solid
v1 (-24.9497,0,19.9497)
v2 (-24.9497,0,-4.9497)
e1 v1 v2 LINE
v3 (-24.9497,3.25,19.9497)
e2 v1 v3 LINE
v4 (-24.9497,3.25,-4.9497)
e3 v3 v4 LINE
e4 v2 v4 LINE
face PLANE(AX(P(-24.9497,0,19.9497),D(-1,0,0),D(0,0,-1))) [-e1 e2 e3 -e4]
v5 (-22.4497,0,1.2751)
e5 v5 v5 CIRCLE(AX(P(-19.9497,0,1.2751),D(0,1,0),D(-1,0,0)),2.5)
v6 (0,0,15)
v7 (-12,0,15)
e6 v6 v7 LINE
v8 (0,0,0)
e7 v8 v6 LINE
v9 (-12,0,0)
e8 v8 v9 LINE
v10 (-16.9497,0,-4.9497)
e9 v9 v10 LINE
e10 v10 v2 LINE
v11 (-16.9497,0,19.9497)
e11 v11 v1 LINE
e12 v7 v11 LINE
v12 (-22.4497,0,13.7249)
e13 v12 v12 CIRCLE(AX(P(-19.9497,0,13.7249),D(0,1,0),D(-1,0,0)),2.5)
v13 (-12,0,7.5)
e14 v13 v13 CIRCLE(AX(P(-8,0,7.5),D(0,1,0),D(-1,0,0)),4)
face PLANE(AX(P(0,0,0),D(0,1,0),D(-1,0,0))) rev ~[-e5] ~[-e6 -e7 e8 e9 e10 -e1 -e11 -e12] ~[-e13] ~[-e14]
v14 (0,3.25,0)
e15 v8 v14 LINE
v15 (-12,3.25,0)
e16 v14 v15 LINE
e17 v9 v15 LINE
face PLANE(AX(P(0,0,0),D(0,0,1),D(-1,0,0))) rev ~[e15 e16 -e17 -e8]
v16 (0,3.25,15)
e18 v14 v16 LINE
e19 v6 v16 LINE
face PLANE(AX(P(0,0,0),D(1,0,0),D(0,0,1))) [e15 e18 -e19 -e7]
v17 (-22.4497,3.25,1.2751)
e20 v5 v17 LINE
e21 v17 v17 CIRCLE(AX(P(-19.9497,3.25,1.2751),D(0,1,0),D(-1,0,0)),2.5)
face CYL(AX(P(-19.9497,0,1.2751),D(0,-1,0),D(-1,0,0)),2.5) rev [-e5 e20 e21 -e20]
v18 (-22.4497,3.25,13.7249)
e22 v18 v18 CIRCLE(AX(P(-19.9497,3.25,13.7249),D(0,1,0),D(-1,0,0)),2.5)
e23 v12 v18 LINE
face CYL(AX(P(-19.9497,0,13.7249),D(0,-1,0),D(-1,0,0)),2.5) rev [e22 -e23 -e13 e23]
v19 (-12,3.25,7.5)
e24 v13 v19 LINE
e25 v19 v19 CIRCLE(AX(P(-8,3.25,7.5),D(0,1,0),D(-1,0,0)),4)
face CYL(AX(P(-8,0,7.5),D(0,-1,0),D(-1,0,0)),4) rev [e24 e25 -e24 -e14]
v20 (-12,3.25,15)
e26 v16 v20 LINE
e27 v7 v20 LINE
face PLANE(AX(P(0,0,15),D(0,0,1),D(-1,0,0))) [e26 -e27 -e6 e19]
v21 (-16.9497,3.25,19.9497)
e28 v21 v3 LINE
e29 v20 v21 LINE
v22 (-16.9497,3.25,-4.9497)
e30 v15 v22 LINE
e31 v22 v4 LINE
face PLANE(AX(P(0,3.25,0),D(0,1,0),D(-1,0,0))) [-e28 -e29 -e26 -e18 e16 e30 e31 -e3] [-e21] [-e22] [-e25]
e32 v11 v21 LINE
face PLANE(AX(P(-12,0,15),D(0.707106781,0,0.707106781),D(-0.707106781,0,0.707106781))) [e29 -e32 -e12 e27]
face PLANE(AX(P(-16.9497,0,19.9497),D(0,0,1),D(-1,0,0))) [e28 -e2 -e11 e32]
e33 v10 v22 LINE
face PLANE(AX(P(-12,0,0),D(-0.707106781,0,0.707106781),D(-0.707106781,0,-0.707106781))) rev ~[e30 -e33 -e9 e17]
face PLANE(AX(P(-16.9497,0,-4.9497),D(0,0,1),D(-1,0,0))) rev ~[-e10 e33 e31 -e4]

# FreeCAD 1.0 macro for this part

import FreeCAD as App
import Part
import Sketcher


def add_polygon(sketch, points):
    """Adds a closed chain of lines whose ends are joined by coincident constraints."""
    first, n = sketch.GeometryCount, len(points)
    for a, b in zip(points, points[1:] + points[:1]):
        sketch.addGeometry(Part.LineSegment(App.Vector(*a, 0), App.Vector(*b, 0)), False)
    for i in range(n):
        sketch.addConstraint(Sketcher.Constraint("Coincident", first + i, 2, first + (i + 1) % n, 1))

doc = App.newDocument("Part")
params = doc.addObject("Spreadsheet::Sheet", "Params")
for row, (alias, value) in enumerate([
    ("sketch1_width", "12 mm"),
    ("sketch1_width2", "8 mm"),
    ("sketch1_height", "15 mm"),
    ("sketch1_length", "7 mm"),
    ("pad1_length", "3.25 mm"),
    ("sketch2_diameter", "8 mm"),
    ("sketch2_diameter2", "5 mm"),
    ("pocket1_length", "3.25 mm"),
], start=1):
    params.set(f"A{row}", alias)
    params.set(f"B{row}", "=" + value)
    params.setAlias(f"B{row}", alias)

body = doc.addObject("PartDesign::Body", "Body")

sketch1 = body.newObject("Sketcher::SketchObject", "Sketch")
sketch1.AttachmentSupport = (doc.getObject("XZ_Plane"), [""])
sketch1.MapMode = "FlatFace"
add_polygon(sketch1, [(0, 15), (0, 0), (-12, 0), (-16.9497, -4.9497), (-24.9497, -4.9497), (-24.9497, 19.9497), (-16.9497, 19.9497), (-12, 15)])
sketch1.addConstraint([
    Sketcher.Constraint("Vertical", 0),
    Sketcher.Constraint("Horizontal", 1),
    Sketcher.Constraint("Horizontal", 3),
    Sketcher.Constraint("Vertical", 4),
    Sketcher.Constraint("Horizontal", 5),
    Sketcher.Constraint("Horizontal", 7),
    Sketcher.Constraint("Coincident", 0, 2, -1, 1),
    Sketcher.Constraint("Perpendicular", 2, 6),
    Sketcher.Constraint("Vertical", 2, 2, 5, 2),
    Sketcher.Constraint("Vertical", 1, 2, 6, 2),
    Sketcher.Constraint("Equal", 2, 6),
    Sketcher.Constraint("DistanceX", 1, 2, 1, 1, 12.0),
    Sketcher.Constraint("DistanceX", 3, 2, 3, 1, 8.0),
    Sketcher.Constraint("DistanceY", 0, 2, 0, 1, 15.0),
    Sketcher.Constraint("Distance", 2, 7.0),
])
sketch1.setExpression("Constraints[19]", "Params.sketch1_width")
sketch1.setExpression("Constraints[20]", "Params.sketch1_width2")
sketch1.setExpression("Constraints[21]", "Params.sketch1_height")
sketch1.setExpression("Constraints[22]", "Params.sketch1_length")
pad1 = body.newObject("PartDesign::Pad", "Pad")
pad1.Profile = sketch1
pad1.setExpression("Length", "Params.pad1_length")
pad1.Reversed = True

sketch2 = body.newObject("Sketcher::SketchObject", "Sketch001")
sketch2.AttachmentSupport = (doc.getObject("XZ_Plane"), [""])
sketch2.MapMode = "FlatFace"
sketch2.addGeometry([
    Part.Circle(App.Vector(-8, 7.5, 0), App.Vector(0, 0, 1), 4),
    Part.Circle(App.Vector(-19.9497, 13.7249, 0), App.Vector(0, 0, 1), 2.5),
    Part.Circle(App.Vector(-19.9497, 1.2751, 0), App.Vector(0, 0, 1), 2.5),
], False)
sketch2.addConstraint([
    Sketcher.Constraint("Equal", 1, 2),
    Sketcher.Constraint("Vertical", 1, 3, 2, 3),
    Sketcher.Constraint("Diameter", 0, 8.0),
    Sketcher.Constraint("Diameter", 1, 5.0),
    Sketcher.Constraint("DistanceX", 0, 3, -1, 1, 8.0),
    Sketcher.Constraint("DistanceY", -1, 1, 0, 3, 7.5),
    Sketcher.Constraint("DistanceY", -1, 1, 1, 3, 13.725),
    Sketcher.Constraint("DistanceY", -1, 1, 2, 3, 1.275),
    Sketcher.Constraint("DistanceX", 1, 3, -1, 1, 19.9497),
])
sketch2.setExpression("Constraints[2]", "Params.sketch2_diameter")
sketch2.setExpression("Constraints[3]", "Params.sketch2_diameter2")
pocket1 = body.newObject("PartDesign::Pocket", "Pocket")
pocket1.Profile = sketch2
pocket1.setExpression("Length", "Params.pocket1_length")

doc.recompute()
